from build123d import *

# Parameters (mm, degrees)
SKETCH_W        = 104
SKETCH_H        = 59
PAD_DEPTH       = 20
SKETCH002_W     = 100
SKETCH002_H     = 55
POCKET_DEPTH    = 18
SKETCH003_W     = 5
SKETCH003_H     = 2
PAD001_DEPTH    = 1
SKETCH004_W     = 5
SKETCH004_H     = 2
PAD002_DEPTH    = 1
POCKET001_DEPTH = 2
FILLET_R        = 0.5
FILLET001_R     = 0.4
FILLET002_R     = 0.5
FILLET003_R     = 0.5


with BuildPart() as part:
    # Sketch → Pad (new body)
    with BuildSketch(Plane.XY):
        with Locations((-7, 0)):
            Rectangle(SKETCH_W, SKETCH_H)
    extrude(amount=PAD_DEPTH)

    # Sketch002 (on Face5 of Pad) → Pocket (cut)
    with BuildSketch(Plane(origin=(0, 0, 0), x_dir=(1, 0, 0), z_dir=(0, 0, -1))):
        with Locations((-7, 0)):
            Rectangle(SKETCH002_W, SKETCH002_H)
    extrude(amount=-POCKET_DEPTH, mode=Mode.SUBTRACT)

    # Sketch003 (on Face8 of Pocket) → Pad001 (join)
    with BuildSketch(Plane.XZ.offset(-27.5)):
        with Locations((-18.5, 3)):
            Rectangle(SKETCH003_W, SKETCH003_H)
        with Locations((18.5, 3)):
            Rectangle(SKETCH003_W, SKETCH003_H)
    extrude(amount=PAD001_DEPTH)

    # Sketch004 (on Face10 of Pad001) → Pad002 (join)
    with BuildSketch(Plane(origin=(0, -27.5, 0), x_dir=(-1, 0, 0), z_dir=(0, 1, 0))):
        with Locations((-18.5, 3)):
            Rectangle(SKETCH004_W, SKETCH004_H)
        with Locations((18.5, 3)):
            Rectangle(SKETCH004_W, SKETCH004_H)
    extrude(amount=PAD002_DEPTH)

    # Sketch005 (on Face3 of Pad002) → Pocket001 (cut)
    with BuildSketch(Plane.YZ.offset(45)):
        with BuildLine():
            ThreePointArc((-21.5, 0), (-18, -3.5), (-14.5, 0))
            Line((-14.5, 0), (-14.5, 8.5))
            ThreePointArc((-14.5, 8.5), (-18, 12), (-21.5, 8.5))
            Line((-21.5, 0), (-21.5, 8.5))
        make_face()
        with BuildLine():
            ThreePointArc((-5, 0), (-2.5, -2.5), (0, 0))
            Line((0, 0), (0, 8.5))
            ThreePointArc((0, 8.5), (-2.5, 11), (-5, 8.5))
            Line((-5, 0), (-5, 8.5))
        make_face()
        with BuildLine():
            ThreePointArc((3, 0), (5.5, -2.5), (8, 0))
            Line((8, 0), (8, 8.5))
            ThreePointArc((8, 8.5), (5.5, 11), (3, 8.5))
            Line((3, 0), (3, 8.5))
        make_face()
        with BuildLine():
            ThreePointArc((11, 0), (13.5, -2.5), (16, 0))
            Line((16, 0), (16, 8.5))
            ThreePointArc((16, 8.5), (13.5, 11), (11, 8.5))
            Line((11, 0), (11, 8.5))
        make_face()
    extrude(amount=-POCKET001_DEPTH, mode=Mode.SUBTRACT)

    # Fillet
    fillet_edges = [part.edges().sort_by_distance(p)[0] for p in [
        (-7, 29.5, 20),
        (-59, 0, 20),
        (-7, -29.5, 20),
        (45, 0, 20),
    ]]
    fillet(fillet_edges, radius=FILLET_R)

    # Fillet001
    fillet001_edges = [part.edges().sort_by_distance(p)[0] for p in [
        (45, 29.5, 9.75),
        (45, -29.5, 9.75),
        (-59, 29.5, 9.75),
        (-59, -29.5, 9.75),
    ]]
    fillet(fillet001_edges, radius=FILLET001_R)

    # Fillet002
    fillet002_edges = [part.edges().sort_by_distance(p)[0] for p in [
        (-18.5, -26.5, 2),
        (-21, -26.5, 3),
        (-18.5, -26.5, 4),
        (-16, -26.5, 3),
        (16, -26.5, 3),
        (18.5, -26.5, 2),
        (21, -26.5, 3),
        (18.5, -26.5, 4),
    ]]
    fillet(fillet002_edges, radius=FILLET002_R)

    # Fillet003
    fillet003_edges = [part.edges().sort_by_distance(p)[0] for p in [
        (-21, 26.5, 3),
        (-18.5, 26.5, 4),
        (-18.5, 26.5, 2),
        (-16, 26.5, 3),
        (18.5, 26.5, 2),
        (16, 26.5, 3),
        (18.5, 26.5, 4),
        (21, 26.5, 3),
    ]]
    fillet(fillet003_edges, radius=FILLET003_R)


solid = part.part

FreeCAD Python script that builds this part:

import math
import FreeCAD as App
import Part
import Sketcher
from FreeCAD import Vector
Q = App.Units.Quantity


def edges_at(feature, points):
    """Names of the edges that pass closest to the given points."""
    edges = feature.Shape.Edges
    near = lambda p: min(range(len(edges)), key=lambda i: edges[i].distToShape(Part.Vertex(*p))[0])
    return sorted({f"Edge{near(p) + 1}" for p in points})


def add_polygon(sketch, points):
    """Adds a closed chain of lines whose ends are joined by coincident constraints."""
    first, n = sketch.GeometryCount, len(points)
    for a, b in zip(points, points[1:] + points[:1]):
        sketch.addGeometry(Part.LineSegment(App.Vector(*a, 0), App.Vector(*b, 0)), False)
    for i in range(n):
        sketch.addConstraint(Sketcher.Constraint("Coincident", first + i, 2, first + (i + 1) % n, 1))

doc = App.newDocument("Part")
body = doc.addObject("PartDesign::Body", "Body")

# Sketch on XY plane
sketch1 = body.newObject("Sketcher::SketchObject", "Sketch")
sketch1.AttachmentSupport = (doc.getObject("XY_Plane"), [""])
sketch1.MapMode = "FlatFace"
add_polygon(sketch1, [(-59, 30), (-59, -30), (45, -30), (45, 30)])  # lines 0-3
sketch1.addConstraint(Sketcher.Constraint("Vertical", 0))
sketch1.addConstraint(Sketcher.Constraint("Horizontal", 1))
sketch1.addConstraint(Sketcher.Constraint("Vertical", 2))
sketch1.addConstraint(Sketcher.Constraint("Horizontal", 3))
sketch1.addConstraint(Sketcher.Constraint("DistanceX", 1, 1, 1, 2, Q("104 mm")))
sketch1.addConstraint(Sketcher.Constraint("DistanceY", 0, 2, 0, 1, Q("59 mm")))
sketch1.addConstraint(Sketcher.Constraint("DistanceX", 0, 2, -1, 1, Q("59 mm")))
sketch1.addConstraint(Sketcher.Constraint("DistanceY", 0, 2, -1, 1, Q("29.5 mm")))
pad1 = body.newObject("PartDesign::Pad", "Pad")
pad1.Profile = sketch1
pad1.Length = 20

# Sketch on XY plane
sketch2 = body.newObject("Sketcher::SketchObject", "Sketch001")
sketch2.AttachmentSupport = (doc.getObject("XY_Plane"), [""])
sketch2.MapMode = "FlatFace"
add_polygon(sketch2, [(-57, -28), (-57, 28), (43, 28), (43, -28)])  # lines 0-3
sketch2.addConstraint(Sketcher.Constraint("Vertical", 0))
sketch2.addConstraint(Sketcher.Constraint("Horizontal", 1))
sketch2.addConstraint(Sketcher.Constraint("Vertical", 2))
sketch2.addConstraint(Sketcher.Constraint("Horizontal", 3))
sketch2.addConstraint(Sketcher.Constraint("DistanceX", 1, 1, 1, 2, Q("100 mm")))
sketch2.addConstraint(Sketcher.Constraint("DistanceY", 0, 1, 0, 2, Q("55 mm")))
sketch2.addConstraint(Sketcher.Constraint("DistanceX", 0, 2, -1, 1, Q("57 mm")))
sketch2.addConstraint(Sketcher.Constraint("DistanceY", -1, 1, 0, 2, Q("27.5 mm")))
pocket1 = body.newObject("PartDesign::Pocket", "Pocket")
pocket1.Profile = sketch2
pocket1.Length = 18
pocket1.Reversed = True

# Sketch on XZ plane
sketch3 = body.newObject("Sketcher::SketchObject", "Sketch002")
sketch3.AttachmentSupport = (doc.getObject("XZ_Plane"), [""])
sketch3.MapMode = "FlatFace"
sketch3.AttachmentOffset = App.Placement(Vector(0, 0, -27.5), App.Rotation())
add_polygon(sketch3, [(-21, 4), (-21, 2), (-16, 2), (-16, 4)])  # lines 0-3
add_polygon(sketch3, [(16, 4), (16, 2), (21, 2), (21, 4)])  # lines 4-7
sketch3.addConstraint(Sketcher.Constraint("Vertical", 0))
sketch3.addConstraint(Sketcher.Constraint("Horizontal", 1))
sketch3.addConstraint(Sketcher.Constraint("Vertical", 2))
sketch3.addConstraint(Sketcher.Constraint("Horizontal", 3))
sketch3.addConstraint(Sketcher.Constraint("Vertical", 4))
sketch3.addConstraint(Sketcher.Constraint("Horizontal", 5))
sketch3.addConstraint(Sketcher.Constraint("Vertical", 6))
sketch3.addConstraint(Sketcher.Constraint("Horizontal", 7))
sketch3.addConstraint(Sketcher.Constraint("Symmetric", 1, 2, 4, 2, -2))
sketch3.addConstraint(Sketcher.Constraint("Symmetric", 3, 2, 6, 2, -2))
sketch3.addConstraint(Sketcher.Constraint("DistanceX", 1, 1, 1, 2, Q("5 mm")))
sketch3.addConstraint(Sketcher.Constraint("DistanceY", 0, 2, 0, 1, Q("2 mm")))
sketch3.addConstraint(Sketcher.Constraint("DistanceX", 0, 2, -1, 1, Q("21 mm")))
sketch3.addConstraint(Sketcher.Constraint("DistanceY", -1, 1, 0, 2, Q("2 mm")))
pad2 = body.newObject("PartDesign::Pad", "Pad001")
pad2.Profile = sketch3
pad2.Length = 1

# Sketch on XZ plane
sketch4 = body.newObject("Sketcher::SketchObject", "Sketch003")
sketch4.AttachmentSupport = (doc.getObject("XZ_Plane"), [""])
sketch4.MapMode = "FlatFace"
sketch4.AttachmentOffset = App.Placement(Vector(0, 0, 27.5), App.Rotation())
add_polygon(sketch4, [(21, 4), (21, 2), (16, 2), (16, 4)])  # lines 0-3
add_polygon(sketch4, [(-16, 4), (-16, 2), (-21, 2), (-21, 4)])  # lines 4-7
sketch4.addConstraint(Sketcher.Constraint("Vertical", 0))
sketch4.addConstraint(Sketcher.Constraint("Horizontal", 1))
sketch4.addConstraint(Sketcher.Constraint("Vertical", 2))
sketch4.addConstraint(Sketcher.Constraint("Horizontal", 3))
sketch4.addConstraint(Sketcher.Constraint("Vertical", 4))
sketch4.addConstraint(Sketcher.Constraint("Horizontal", 5))
sketch4.addConstraint(Sketcher.Constraint("Vertical", 6))
sketch4.addConstraint(Sketcher.Constraint("Horizontal", 7))
sketch4.addConstraint(Sketcher.Constraint("Symmetric", 1, 2, 4, 2, -2))
sketch4.addConstraint(Sketcher.Constraint("Symmetric", 3, 2, 6, 2, -2))
sketch4.addConstraint(Sketcher.Constraint("DistanceX", 1, 2, 1, 1, Q("5 mm")))
sketch4.addConstraint(Sketcher.Constraint("DistanceY", 0, 2, 0, 1, Q("2 mm")))
sketch4.addConstraint(Sketcher.Constraint("DistanceX", -1, 1, 0, 2, Q("21 mm")))
sketch4.addConstraint(Sketcher.Constraint("DistanceY", -1, 1, 0, 2, Q("2 mm")))
pad3 = body.newObject("PartDesign::Pad", "Pad002")
pad3.Profile = sketch4
pad3.Length = 1
pad3.Reversed = True

# Sketch on YZ plane
sketch5 = body.newObject("Sketcher::SketchObject", "Sketch004")
sketch5.AttachmentSupport = (doc.getObject("YZ_Plane"), [""])
sketch5.MapMode = "FlatFace"
sketch5.AttachmentOffset = App.Placement(Vector(0, 0, 45), App.Rotation())
sketch5.addGeometry(Part.ArcOfCircle(Part.Circle(Vector(-18, 0, 0), Vector(0, 0, 1), 3.5), math.radians(180), math.radians(360)), False)
sketch5.addGeometry(Part.LineSegment(Vector(-14.5, 0, 0), Vector(-14.5, 8.5, 0)), False)
sketch5.addGeometry(Part.ArcOfCircle(Part.Circle(Vector(-18, 8.5, 0), Vector(0, 0, 1), 3.5), math.radians(0), math.radians(180)), False)
sketch5.addGeometry(Part.LineSegment(Vector(-21.5, 8.5, 0), Vector(-21.5, 0, 0)), False)
sketch5.addGeometry(Part.ArcOfCircle(Part.Circle(Vector(-2.5, 0, 0), Vector(0, 0, 1), 2.5), math.radians(180), math.radians(360)), False)
sketch5.addGeometry(Part.LineSegment(Vector(0, 0, 0), Vector(0, 8.5, 0)), False)
sketch5.addGeometry(Part.ArcOfCircle(Part.Circle(Vector(-2.5, 8.5, 0), Vector(0, 0, 1), 2.5), math.radians(0), math.radians(180)), False)
sketch5.addGeometry(Part.LineSegment(Vector(-5, 8.5, 0), Vector(-5, 0, 0)), False)
sketch5.addGeometry(Part.ArcOfCircle(Part.Circle(Vector(5.5, 0, 0), Vector(0, 0, 1), 2.5), math.radians(180), math.radians(360)), False)
sketch5.addGeometry(Part.LineSegment(Vector(8, 0, 0), Vector(8, 8.5, 0)), False)
sketch5.addGeometry(Part.ArcOfCircle(Part.Circle(Vector(5.5, 8.5, 0), Vector(0, 0, 1), 2.5), math.radians(0), math.radians(180)), False)
sketch5.addGeometry(Part.LineSegment(Vector(3, 8.5, 0), Vector(3, 0, 0)), False)
sketch5.addGeometry(Part.ArcOfCircle(Part.Circle(Vector(13.5, 0, 0), Vector(0, 0, 1), 2.5), math.radians(180), math.radians(360)), False)
sketch5.addGeometry(Part.LineSegment(Vector(16, 0, 0), Vector(16, 8.5, 0)), False)
sketch5.addGeometry(Part.ArcOfCircle(Part.Circle(Vector(13.5, 8.5, 0), Vector(0, 0, 1), 2.5), math.radians(0), math.radians(180)), False)
sketch5.addGeometry(Part.LineSegment(Vector(11, 8.5, 0), Vector(11, 0, 0)), False)
sketch5.addConstraint(Sketcher.Constraint("Tangent", 0, 2, 1, 1))
sketch5.addConstraint(Sketcher.Constraint("Tangent", 1, 2, 2, 1))
sketch5.addConstraint(Sketcher.Constraint("Tangent", 2, 2, 3, 1))
sketch5.addConstraint(Sketcher.Constraint("Tangent", 3, 2, 0, 1))
sketch5.addConstraint(Sketcher.Constraint("Tangent", 4, 2, 5, 1))
sketch5.addConstraint(Sketcher.Constraint("Tangent", 5, 2, 6, 1))
sketch5.addConstraint(Sketcher.Constraint("Tangent", 6, 2, 7, 1))
sketch5.addConstraint(Sketcher.Constraint("Tangent", 7, 2, 4, 1))
sketch5.addConstraint(Sketcher.Constraint("Tangent", 8, 2, 9, 1))
sketch5.addConstraint(Sketcher.Constraint("Tangent", 9, 2, 10, 1))
sketch5.addConstraint(Sketcher.Constraint("Tangent", 10, 2, 11, 1))
sketch5.addConstraint(Sketcher.Constraint("Tangent", 11, 2, 8, 1))
sketch5.addConstraint(Sketcher.Constraint("Tangent", 12, 2, 13, 1))
sketch5.addConstraint(Sketcher.Constraint("Tangent", 13, 2, 14, 1))
sketch5.addConstraint(Sketcher.Constraint("Tangent", 14, 2, 15, 1))
sketch5.addConstraint(Sketcher.Constraint("Tangent", 15, 2, 12, 1))
sketch5.addConstraint(Sketcher.Constraint("Vertical", 1))
sketch5.addConstraint(Sketcher.Constraint("Vertical", 3))
sketch5.addConstraint(Sketcher.Constraint("Vertical", 5))
sketch5.addConstraint(Sketcher.Constraint("Vertical", 7))
sketch5.addConstraint(Sketcher.Constraint("Vertical", 9))
sketch5.addConstraint(Sketcher.Constraint("Vertical", 11))
sketch5.addConstraint(Sketcher.Constraint("Vertical", 13))
sketch5.addConstraint(Sketcher.Constraint("Vertical", 15))
sketch5.addConstraint(Sketcher.Constraint("Coincident", 4, 2, -1, 1))
sketch5.addConstraint(Sketcher.Constraint("Equal", 6, 8))
sketch5.addConstraint(Sketcher.Constraint("Equal", 10, 12))
sketch5.addConstraint(Sketcher.Constraint("PointOnObject", 0, 3, -1))
sketch5.addConstraint(Sketcher.Constraint("PointOnObject", 8, 3, -1))
sketch5.addConstraint(Sketcher.Constraint("PointOnObject", 12, 3, -1))
sketch5.addConstraint(Sketcher.Constraint("Horizontal", 2, 3, 6, 3))
sketch5.addConstraint(Sketcher.Constraint("Horizontal", 6, 3, 10, 3))
sketch5.addConstraint(Sketcher.Constraint("Horizontal", 10, 3, 14, 3))
sketch5.addConstraint(Sketcher.Constraint("Radius", 0, Q("3.5 mm")))
sketch5.addConstraint(Sketcher.Constraint("Radius", 4, Q("2.5 mm")))
sketch5.addConstraint(Sketcher.Constraint("DistanceY", 1, 1, 1, 2, Q("8.5 mm")))
sketch5.addConstraint(Sketcher.Constraint("DistanceX", 0, 3, -1, 1, Q("18 mm")))
sketch5.addConstraint(Sketcher.Constraint("DistanceX", -1, 1, 8, 2, Q("8 mm")))
sketch5.addConstraint(Sketcher.Constraint("DistanceX", -1, 1, 12, 2, Q("16 mm")))
pocket2 = body.newObject("PartDesign::Pocket", "Pocket001")
pocket2.Profile = sketch5
pocket2.Length = 2
doc.recompute()

fillet = body.newObject("PartDesign::Fillet", "Fillet")
fillet.Base = (pocket2, edges_at(pocket2, [
    (-7, 29.5, 20),
    (-59, 0, 20),
    (-7, -29.5, 20),
    (45, 0, 20),
]))
fillet.Radius = 0.5
doc.recompute()

fillet2 = body.newObject("PartDesign::Fillet", "Fillet001")
fillet2.Base = (fillet, edges_at(fillet, [
    (45, 29.5, 9.75),
    (45, -29.5, 9.75),
    (-59, 29.5, 9.75),
    (-59, -29.5, 9.75),
]))
fillet2.Radius = 0.4
doc.recompute()

fillet3 = body.newObject("PartDesign::Fillet", "Fillet002")
fillet3.Base = (fillet2, edges_at(fillet2, [
    (-18.5, -26.5, 2),
    (-21, -26.5, 3),
    (-18.5, -26.5, 4),
    (-16, -26.5, 3),
    (16, -26.5, 3),
    (18.5, -26.5, 2),
    (21, -26.5, 3),
    (18.5, -26.5, 4),
]))
fillet3.Radius = 0.5
doc.recompute()

fillet4 = body.newObject("PartDesign::Fillet", "Fillet003")
fillet4.Base = (fillet3, edges_at(fillet3, [
    (-21, 26.5, 3),
    (-18.5, 26.5, 4),
    (-18.5, 26.5, 2),
    (-16, 26.5, 3),
    (18.5, 26.5, 2),
    (16, 26.5, 3),
    (18.5, 26.5, 4),
    (21, 26.5, 3),
]))
fillet4.Radius = 0.5

doc.recompute()
